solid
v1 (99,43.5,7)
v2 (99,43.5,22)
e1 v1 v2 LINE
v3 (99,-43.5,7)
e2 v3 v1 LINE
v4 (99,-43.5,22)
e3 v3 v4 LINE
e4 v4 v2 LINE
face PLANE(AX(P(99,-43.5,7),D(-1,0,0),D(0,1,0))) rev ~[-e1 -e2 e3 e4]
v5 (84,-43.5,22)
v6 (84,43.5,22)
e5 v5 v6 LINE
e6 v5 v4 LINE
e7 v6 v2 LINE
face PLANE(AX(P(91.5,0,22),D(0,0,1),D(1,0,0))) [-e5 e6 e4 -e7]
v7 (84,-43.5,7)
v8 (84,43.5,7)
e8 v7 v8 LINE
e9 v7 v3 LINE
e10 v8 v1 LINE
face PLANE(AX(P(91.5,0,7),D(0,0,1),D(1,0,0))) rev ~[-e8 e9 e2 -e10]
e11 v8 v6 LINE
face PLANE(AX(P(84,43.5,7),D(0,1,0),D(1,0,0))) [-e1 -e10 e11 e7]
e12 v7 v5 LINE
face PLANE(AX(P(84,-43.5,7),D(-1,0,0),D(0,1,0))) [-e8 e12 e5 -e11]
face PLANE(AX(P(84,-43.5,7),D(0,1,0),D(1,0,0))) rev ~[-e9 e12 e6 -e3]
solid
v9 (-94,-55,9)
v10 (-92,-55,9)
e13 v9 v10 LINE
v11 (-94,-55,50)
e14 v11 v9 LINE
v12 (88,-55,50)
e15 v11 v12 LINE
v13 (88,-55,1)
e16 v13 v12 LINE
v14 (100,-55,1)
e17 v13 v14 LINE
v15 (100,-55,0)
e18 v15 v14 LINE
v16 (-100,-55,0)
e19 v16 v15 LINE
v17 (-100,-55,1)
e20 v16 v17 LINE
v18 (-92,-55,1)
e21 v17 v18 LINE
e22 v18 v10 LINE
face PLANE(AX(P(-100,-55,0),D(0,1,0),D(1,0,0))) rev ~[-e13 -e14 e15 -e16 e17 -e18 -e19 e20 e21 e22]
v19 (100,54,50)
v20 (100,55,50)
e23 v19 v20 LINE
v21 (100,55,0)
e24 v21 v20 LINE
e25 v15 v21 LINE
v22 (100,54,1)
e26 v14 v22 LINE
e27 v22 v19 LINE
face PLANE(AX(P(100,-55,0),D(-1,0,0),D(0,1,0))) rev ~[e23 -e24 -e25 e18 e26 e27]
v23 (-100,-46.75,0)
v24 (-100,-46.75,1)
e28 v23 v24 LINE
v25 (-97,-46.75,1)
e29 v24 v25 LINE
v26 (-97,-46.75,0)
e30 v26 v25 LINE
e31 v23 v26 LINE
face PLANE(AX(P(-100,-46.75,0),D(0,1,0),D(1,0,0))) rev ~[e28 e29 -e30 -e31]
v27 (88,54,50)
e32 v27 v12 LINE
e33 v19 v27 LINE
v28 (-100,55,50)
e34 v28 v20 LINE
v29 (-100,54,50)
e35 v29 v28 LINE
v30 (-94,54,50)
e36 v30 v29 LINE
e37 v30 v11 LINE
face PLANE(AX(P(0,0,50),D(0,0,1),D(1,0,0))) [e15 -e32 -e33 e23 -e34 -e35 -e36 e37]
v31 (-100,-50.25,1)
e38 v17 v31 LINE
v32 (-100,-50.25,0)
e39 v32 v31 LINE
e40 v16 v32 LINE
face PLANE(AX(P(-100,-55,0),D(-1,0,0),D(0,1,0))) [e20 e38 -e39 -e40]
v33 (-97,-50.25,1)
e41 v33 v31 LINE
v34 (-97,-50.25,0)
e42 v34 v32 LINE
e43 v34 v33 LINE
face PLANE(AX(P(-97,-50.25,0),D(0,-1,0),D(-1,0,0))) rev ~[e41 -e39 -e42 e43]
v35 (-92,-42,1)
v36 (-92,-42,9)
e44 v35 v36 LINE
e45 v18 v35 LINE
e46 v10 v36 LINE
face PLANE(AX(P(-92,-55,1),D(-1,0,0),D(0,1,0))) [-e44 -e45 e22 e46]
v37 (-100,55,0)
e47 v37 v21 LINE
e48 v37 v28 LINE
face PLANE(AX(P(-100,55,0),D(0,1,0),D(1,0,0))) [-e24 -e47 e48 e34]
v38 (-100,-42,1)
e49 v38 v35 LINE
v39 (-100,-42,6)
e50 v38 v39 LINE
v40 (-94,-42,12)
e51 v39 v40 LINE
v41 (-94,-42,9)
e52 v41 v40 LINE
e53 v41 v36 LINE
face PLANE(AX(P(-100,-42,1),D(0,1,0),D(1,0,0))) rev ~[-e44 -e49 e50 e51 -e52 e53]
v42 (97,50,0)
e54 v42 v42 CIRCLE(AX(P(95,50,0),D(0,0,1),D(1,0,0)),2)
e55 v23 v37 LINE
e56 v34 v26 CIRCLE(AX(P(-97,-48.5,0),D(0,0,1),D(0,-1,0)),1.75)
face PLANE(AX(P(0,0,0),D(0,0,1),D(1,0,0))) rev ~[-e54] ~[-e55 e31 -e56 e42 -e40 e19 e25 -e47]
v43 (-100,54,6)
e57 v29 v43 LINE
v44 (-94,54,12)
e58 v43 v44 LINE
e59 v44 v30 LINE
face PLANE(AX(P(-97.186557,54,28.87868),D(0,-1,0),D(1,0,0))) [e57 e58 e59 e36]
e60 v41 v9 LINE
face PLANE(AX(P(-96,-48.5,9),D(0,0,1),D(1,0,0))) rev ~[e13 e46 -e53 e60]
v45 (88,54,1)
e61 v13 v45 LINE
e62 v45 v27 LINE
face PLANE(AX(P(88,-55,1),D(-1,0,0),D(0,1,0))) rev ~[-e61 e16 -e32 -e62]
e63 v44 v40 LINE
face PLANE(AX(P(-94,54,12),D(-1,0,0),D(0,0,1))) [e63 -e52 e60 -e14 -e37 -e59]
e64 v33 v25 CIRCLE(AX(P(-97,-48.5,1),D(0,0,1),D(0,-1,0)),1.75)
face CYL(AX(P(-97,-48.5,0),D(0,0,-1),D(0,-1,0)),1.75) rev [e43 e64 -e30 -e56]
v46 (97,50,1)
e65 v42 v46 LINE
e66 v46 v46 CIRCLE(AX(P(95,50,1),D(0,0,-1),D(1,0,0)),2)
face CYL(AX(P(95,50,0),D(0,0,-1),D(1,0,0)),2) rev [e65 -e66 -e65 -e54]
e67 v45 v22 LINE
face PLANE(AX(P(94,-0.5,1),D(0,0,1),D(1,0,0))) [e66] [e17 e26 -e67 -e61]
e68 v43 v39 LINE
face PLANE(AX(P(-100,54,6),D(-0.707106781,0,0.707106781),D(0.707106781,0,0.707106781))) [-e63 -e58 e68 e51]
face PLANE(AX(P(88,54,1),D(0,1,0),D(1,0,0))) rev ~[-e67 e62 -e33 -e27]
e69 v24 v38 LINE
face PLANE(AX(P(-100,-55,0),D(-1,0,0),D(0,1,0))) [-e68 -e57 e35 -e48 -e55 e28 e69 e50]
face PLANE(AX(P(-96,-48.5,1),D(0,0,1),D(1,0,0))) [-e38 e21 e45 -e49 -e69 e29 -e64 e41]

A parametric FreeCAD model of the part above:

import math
import FreeCAD as App
import Part
import Sketcher


def add_polygon(sketch, points):
    """Adds a closed chain of lines whose ends are joined by coincident constraints."""
    first, n = sketch.GeometryCount, len(points)
    for a, b in zip(points, points[1:] + points[:1]):
        sketch.addGeometry(Part.LineSegment(App.Vector(*a, 0), App.Vector(*b, 0)), False)
    for i in range(n):
        sketch.addConstraint(Sketcher.Constraint("Coincident", first + i, 2, first + (i + 1) % n, 1))

doc = App.newDocument("Part")
body = doc.addObject("PartDesign::Body", "Body")

# Sketch on XY plane
sketch1 = doc.addObject("Sketcher::SketchObject", "Sketch")
body.addObject(sketch1)
sketch1.AttachmentSupport = (doc.XY_Plane, [""])
sketch1.MapMode = "FlatFace"
add_polygon(sketch1, [(-100, 55), (-100, -55), (100, -55), (100, 55)])  # lines 0-3
sketch1.addGeometry(Part.Circle(App.Vector(95, 50, 0), App.Vector(0, 0, 1), 2), False)  # 4
sketch1.addConstraint(Sketcher.Constraint("Vertical", 0))
sketch1.addConstraint(Sketcher.Constraint("Horizontal", 1))
sketch1.addConstraint(Sketcher.Constraint("Vertical", 2))
sketch1.addConstraint(Sketcher.Constraint("Horizontal", 3))
sketch1.addConstraint(Sketcher.Constraint("Symmetric", 0, 2, 2, 2, -1, 1))
sketch1.addConstraint(Sketcher.Constraint("Diameter", 4, 4.0))
sketch1.addConstraint(Sketcher.Constraint("DistanceX", 1, 1, 1, 2, 200.0))
sketch1.addConstraint(Sketcher.Constraint("DistanceY", 0, 2, 0, 1, 110.0))
sketch1.addConstraint(Sketcher.Constraint("DistanceX", -1, 1, 4, 3, 95.0))
sketch1.addConstraint(Sketcher.Constraint("DistanceY", -1, 1, 4, 3, 50.0))
pad1 = doc.addObject("PartDesign::Pad", "Pad")
body.addObject(pad1)
pad1.Profile = sketch1
pad1.Length = 50

# Sketch on XY plane
sketch2 = doc.addObject("Sketcher::SketchObject", "Sketch001")
body.addObject(sketch2)
sketch2.AttachmentSupport = (doc.XY_Plane, [""])
sketch2.MapMode = "FlatFace"
sketch2.AttachmentOffset = App.Placement(App.Vector(0, 0, 1), App.Rotation())
add_polygon(sketch2, [(-100, -42), (-100, -55), (-92, -55), (-92, -42)])  # lines 0-3
sketch2.addConstraint(Sketcher.Constraint("Vertical", 0))
sketch2.addConstraint(Sketcher.Constraint("Horizontal", 1))
sketch2.addConstraint(Sketcher.Constraint("Vertical", 2))
sketch2.addConstraint(Sketcher.Constraint("Horizontal", 3))
sketch2.addConstraint(Sketcher.Constraint("DistanceX", 1, 1, 1, 2, 8.0))
sketch2.addConstraint(Sketcher.Constraint("DistanceY", 0, 2, 0, 1, 13.0))
sketch2.addConstraint(Sketcher.Constraint("DistanceX", 0, 2, -1, 1, 100.0))
sketch2.addConstraint(Sketcher.Constraint("DistanceY", 0, 2, -1, 1, 55.0))
pocket1 = doc.addObject("PartDesign::Pocket", "Pocket")
body.addObject(pocket1)
pocket1.Profile = sketch2
pocket1.Length = 8
pocket1.Reversed = True

# Sketch on XZ plane
sketch3 = doc.addObject("Sketcher::SketchObject", "Sketch002")
body.addObject(sketch3)
sketch3.AttachmentSupport = (doc.XZ_Plane, [""])
sketch3.MapMode = "FlatFace"
sketch3.AttachmentOffset = App.Placement(App.Vector(0, 0, -54), App.Rotation())
add_polygon(sketch3, [(-100, 6), (-94, 12), (-94, 50), (-100, 50)])  # lines 0-3
sketch3.addConstraint(Sketcher.Constraint("Vertical", 1))
sketch3.addConstraint(Sketcher.Constraint("Horizontal", 2))
sketch3.addConstraint(Sketcher.Constraint("Vertical", 3))
sketch3.addConstraint(Sketcher.Constraint("DistanceX", 2, 2, 2, 1, 6.0))
sketch3.addConstraint(Sketcher.Constraint("DistanceY", 1, 1, 1, 2, 38.0))
sketch3.addConstraint(Sketcher.Constraint("DistanceY", 3, 2, 3, 1, 44.0))
sketch3.addConstraint(Sketcher.Constraint("DistanceX", 0, 2, -1, 1, 94.0))
sketch3.addConstraint(Sketcher.Constraint("DistanceY", -1, 1, 0, 2, 12.0))
pocket2 = doc.addObject("PartDesign::Pocket", "Pocket001")
body.addObject(pocket2)
pocket2.Profile = sketch3
pocket2.Type = "ThroughAll"
pocket2.Reversed = True

# Sketch on XY plane
sketch4 = doc.addObject("Sketcher::SketchObject", "Sketch003")
body.addObject(sketch4)
sketch4.AttachmentSupport = (doc.XY_Plane, [""])
sketch4.MapMode = "FlatFace"
sketch4.AttachmentOffset = App.Placement(App.Vector(0, 0, 1), App.Rotation())
add_polygon(sketch4, [(-100, -42), (-100, -55), (-94, -55), (-94, -42)])  # lines 0-3
sketch4.addConstraint(Sketcher.Constraint("Vertical", 0))
sketch4.addConstraint(Sketcher.Constraint("Horizontal", 1))
sketch4.addConstraint(Sketcher.Constraint("Vertical", 2))
sketch4.addConstraint(Sketcher.Constraint("Horizontal", 3))
sketch4.addConstraint(Sketcher.Constraint("DistanceX", 1, 1, 1, 2, 6.0))
sketch4.addConstraint(Sketcher.Constraint("DistanceY", 0, 2, 0, 1, 13.0))
sketch4.addConstraint(Sketcher.Constraint("DistanceX", 0, 2, -1, 1, 100.0))
sketch4.addConstraint(Sketcher.Constraint("DistanceY", 0, 2, -1, 1, 55.0))
pocket3 = doc.addObject("PartDesign::Pocket", "Pocket002")
body.addObject(pocket3)
pocket3.Profile = sketch4
pocket3.Type = "ThroughAll"
pocket3.Reversed = True

# Sketch on XY plane
sketch5 = doc.addObject("Sketcher::SketchObject", "Sketch004")
body.addObject(sketch5)
sketch5.AttachmentSupport = (doc.XY_Plane, [""])
sketch5.MapMode = "FlatFace"
sketch5.AttachmentOffset = App.Placement(App.Vector(0, 0, 1), App.Rotation())
add_polygon(sketch5, [(88, 54), (88, -55), (100, -55), (100, 54)])  # lines 0-3
sketch5.addConstraint(Sketcher.Constraint("Vertical", 0))
sketch5.addConstraint(Sketcher.Constraint("Horizontal", 1))
sketch5.addConstraint(Sketcher.Constraint("Vertical", 2))
sketch5.addConstraint(Sketcher.Constraint("Horizontal", 3))
sketch5.addConstraint(Sketcher.Constraint("DistanceX", 1, 1, 1, 2, 12.0))
sketch5.addConstraint(Sketcher.Constraint("DistanceY", 0, 2, 0, 1, 109.0))
sketch5.addConstraint(Sketcher.Constraint("DistanceX", -1, 1, 0, 2, 88.0))
sketch5.addConstraint(Sketcher.Constraint("DistanceY", 0, 2, -1, 1, 55.0))
pocket4 = doc.addObject("PartDesign::Pocket", "Pocket003")
body.addObject(pocket4)
pocket4.Profile = sketch5
pocket4.Type = "ThroughAll"
pocket4.Reversed = True

# Sketch on XY plane
sketch6 = doc.addObject("Sketcher::SketchObject", "Sketch005")
body.addObject(sketch6)
sketch6.AttachmentSupport = (doc.XY_Plane, [""])
sketch6.MapMode = "FlatFace"
sketch6.addGeometry(Part.ArcOfCircle(Part.Circle(App.Vector(-97, -48.5, 0), App.Vector(0, 0, 1), 1.8), math.radians(-90), math.radians(90)), False)
sketch6.addGeometry(Part.LineSegment(App.Vector(-97, -46.8, 0), App.Vector(-100, -46.8, 0)), False)
sketch6.addGeometry(Part.LineSegment(App.Vector(-100, -46.8, 0), App.Vector(-100, -50.2, 0)), False)
sketch6.addGeometry(Part.LineSegment(App.Vector(-100, -50.2, 0), App.Vector(-97, -50.2, 0)), False)
sketch6.addConstraint(Sketcher.Constraint("Tangent", 0, 2, 1, 1))
sketch6.addConstraint(Sketcher.Constraint("Coincident", 1, 2, 2, 1))
sketch6.addConstraint(Sketcher.Constraint("Coincident", 2, 2, 3, 1))
sketch6.addConstraint(Sketcher.Constraint("Tangent", 3, 2, 0, 1))
sketch6.addConstraint(Sketcher.Constraint("Horizontal", 1))
sketch6.addConstraint(Sketcher.Constraint("Vertical", 2))
sketch6.addConstraint(Sketcher.Constraint("Horizontal", 3))
sketch6.addConstraint(Sketcher.Constraint("DistanceX", 1, 2, 1, 1, 3.0))
sketch6.addConstraint(Sketcher.Constraint("Radius", 0, 1.75))
sketch6.addConstraint(Sketcher.Constraint("DistanceX", 0, 3, -1, 1, 97.0))
sketch6.addConstraint(Sketcher.Constraint("DistanceY", 0, 3, -1, 1, 48.5))
pocket5 = doc.addObject("PartDesign::Pocket", "Pocket004")
body.addObject(pocket5)
pocket5.Profile = sketch6
pocket5.Length = 1
pocket5.Reversed = True
body2 = doc.addObject("PartDesign::Body", "Body001")

# Sketch on XY plane
sketch7 = doc.addObject("Sketcher::SketchObject", "Sketch006")
body2.addObject(sketch7)
sketch7.AttachmentSupport = (doc.getObject("XY_Plane001"), [""])
sketch7.MapMode = "FlatFace"
sketch7.AttachmentOffset = App.Placement(App.Vector(0, 0, 7), App.Rotation())
add_polygon(sketch7, [(84, 44), (84, -44), (99, -44), (99, 44)])  # lines 0-3
sketch7.addConstraint(Sketcher.Constraint("Vertical", 0))
sketch7.addConstraint(Sketcher.Constraint("Horizontal", 1))
sketch7.addConstraint(Sketcher.Constraint("Vertical", 2))
sketch7.addConstraint(Sketcher.Constraint("Horizontal", 3))
sketch7.addConstraint(Sketcher.Constraint("DistanceX", 1, 1, 1, 2, 15.0))
sketch7.addConstraint(Sketcher.Constraint("DistanceY", 0, 2, 0, 1, 87.0))
sketch7.addConstraint(Sketcher.Constraint("DistanceX", -1, 1, 0, 2, 84.0))
sketch7.addConstraint(Sketcher.Constraint("DistanceY", 0, 2, -1, 1, 43.5))
pad2 = doc.addObject("PartDesign::Pad", "Pad001")
body2.addObject(pad2)
pad2.Profile = sketch7
pad2.Length = 15

doc.recompute()
